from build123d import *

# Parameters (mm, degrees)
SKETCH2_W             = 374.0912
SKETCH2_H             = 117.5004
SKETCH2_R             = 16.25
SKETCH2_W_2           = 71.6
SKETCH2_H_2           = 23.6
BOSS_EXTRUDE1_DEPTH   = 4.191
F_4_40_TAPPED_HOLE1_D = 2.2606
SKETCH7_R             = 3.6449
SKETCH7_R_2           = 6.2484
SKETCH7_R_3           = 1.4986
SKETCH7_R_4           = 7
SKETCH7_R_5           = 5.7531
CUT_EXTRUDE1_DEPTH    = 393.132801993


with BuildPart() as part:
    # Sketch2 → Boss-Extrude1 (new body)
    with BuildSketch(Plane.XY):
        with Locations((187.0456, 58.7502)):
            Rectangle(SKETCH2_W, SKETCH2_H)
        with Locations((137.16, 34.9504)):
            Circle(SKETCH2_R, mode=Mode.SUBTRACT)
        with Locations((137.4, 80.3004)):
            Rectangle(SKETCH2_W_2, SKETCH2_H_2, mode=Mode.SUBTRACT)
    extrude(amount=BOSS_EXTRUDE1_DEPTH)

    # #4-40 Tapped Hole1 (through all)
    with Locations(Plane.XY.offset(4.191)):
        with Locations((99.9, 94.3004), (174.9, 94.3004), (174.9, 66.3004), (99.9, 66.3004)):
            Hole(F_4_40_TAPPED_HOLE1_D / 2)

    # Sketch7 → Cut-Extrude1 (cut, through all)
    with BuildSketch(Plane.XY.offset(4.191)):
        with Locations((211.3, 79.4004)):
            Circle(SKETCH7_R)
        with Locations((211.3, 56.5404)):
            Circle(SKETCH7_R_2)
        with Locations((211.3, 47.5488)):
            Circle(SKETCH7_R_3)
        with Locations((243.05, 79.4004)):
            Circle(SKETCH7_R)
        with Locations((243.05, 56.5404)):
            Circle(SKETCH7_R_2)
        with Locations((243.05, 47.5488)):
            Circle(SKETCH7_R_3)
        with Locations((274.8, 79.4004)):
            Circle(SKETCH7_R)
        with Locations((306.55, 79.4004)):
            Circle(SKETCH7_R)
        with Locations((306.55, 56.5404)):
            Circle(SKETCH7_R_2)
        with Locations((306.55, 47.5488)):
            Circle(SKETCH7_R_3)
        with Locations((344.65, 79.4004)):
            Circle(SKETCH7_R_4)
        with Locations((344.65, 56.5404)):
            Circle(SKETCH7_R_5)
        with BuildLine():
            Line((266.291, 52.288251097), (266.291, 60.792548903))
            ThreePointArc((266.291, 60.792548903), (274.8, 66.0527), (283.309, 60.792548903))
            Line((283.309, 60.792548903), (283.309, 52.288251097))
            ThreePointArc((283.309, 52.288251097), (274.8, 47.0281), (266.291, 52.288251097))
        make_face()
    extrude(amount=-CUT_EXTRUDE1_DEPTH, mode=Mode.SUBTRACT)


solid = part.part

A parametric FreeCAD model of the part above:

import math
import FreeCAD as App
import Part
import Sketcher
from FreeCAD import Vector
Q = App.Units.Quantity

doc = App.newDocument("Part")
body = doc.addObject("PartDesign::Body", "Body")

sketch1 = doc.addObject("Sketcher::SketchObject", "Sketch")
body.addObject(sketch1)
sketch1.AttachmentSupport = (doc.XY_Plane, [""])
sketch1.MapMode = "FlatFace"
sketch1.addGeometry(Part.LineSegment(Vector(0, 118, 0), Vector(0, 0, 0)), False)
sketch1.addGeometry(Part.LineSegment(Vector(0, 0, 0), Vector(374, 0, 0)), False)
sketch1.addGeometry(Part.LineSegment(Vector(374, 0, 0), Vector(374, 118, 0)), False)
sketch1.addGeometry(Part.LineSegment(Vector(374, 118, 0), Vector(0, 118, 0)), False)
sketch1.addGeometry(Part.Circle(Vector(137, 35, 0), Vector(0, 0, 1), 16), False)
sketch1.addGeometry(Part.LineSegment(Vector(173, 69, 0), Vector(102, 69, 0)), False)
sketch1.addGeometry(Part.LineSegment(Vector(102, 69, 0), Vector(102, 92, 0)), False)
sketch1.addGeometry(Part.LineSegment(Vector(102, 92, 0), Vector(173, 92, 0)), False)
sketch1.addGeometry(Part.LineSegment(Vector(173, 92, 0), Vector(173, 69, 0)), False)
sketch1.addConstraint(Sketcher.Constraint("Coincident", 0, 2, 1, 1))
sketch1.addConstraint(Sketcher.Constraint("Coincident", 1, 2, 2, 1))
sketch1.addConstraint(Sketcher.Constraint("Coincident", 2, 2, 3, 1))
sketch1.addConstraint(Sketcher.Constraint("Coincident", 3, 2, 0, 1))
sketch1.addConstraint(Sketcher.Constraint("Coincident", 5, 2, 6, 1))
sketch1.addConstraint(Sketcher.Constraint("Coincident", 6, 2, 7, 1))
sketch1.addConstraint(Sketcher.Constraint("Coincident", 7, 2, 8, 1))
sketch1.addConstraint(Sketcher.Constraint("Coincident", 8, 2, 5, 1))
sketch1.addConstraint(Sketcher.Constraint("Vertical", 0))
sketch1.addConstraint(Sketcher.Constraint("Horizontal", 1))
sketch1.addConstraint(Sketcher.Constraint("Vertical", 2))
sketch1.addConstraint(Sketcher.Constraint("Horizontal", 3))
sketch1.addConstraint(Sketcher.Constraint("Horizontal", 5))
sketch1.addConstraint(Sketcher.Constraint("Vertical", 6))
sketch1.addConstraint(Sketcher.Constraint("Horizontal", 7))
sketch1.addConstraint(Sketcher.Constraint("Vertical", 8))
sketch1.addConstraint(Sketcher.Constraint("Coincident", 0, 2, -1, 1))
sketch1.addConstraint(Sketcher.Constraint("DistanceX", -1, 1, 5, 2, Q("4 in")))
sketch1.addConstraint(Sketcher.Constraint("DistanceY", 6, 2, 3, 2, Q("1 in")))
sketch1.addConstraint(Sketcher.Constraint("DistanceX", -1, 1, 4, 3, Q("5.4 in")))
sketch1.addConstraint(Sketcher.Constraint("Diameter", 4, Q("32.5 mm")))
sketch1.addConstraint(Sketcher.Constraint("DistanceX", 1, 1, 1, 2, Q("14.728 in")))
sketch1.addConstraint(Sketcher.Constraint("DistanceY", 0, 2, 0, 1, Q("4.626 in")))
sketch1.addConstraint(Sketcher.Constraint("DistanceY", 4, 3, 2, 2, Q("3.25 in")))
sketch1.addConstraint(Sketcher.Constraint("DistanceX", 5, 2, 5, 1, Q("71.6 mm")))
sketch1.addConstraint(Sketcher.Constraint("DistanceY", 6, 1, 6, 2, Q("23.6 mm")))
pad1 = doc.addObject("PartDesign::Pad", "Pad")
body.addObject(pad1)
pad1.Profile = sketch1
pad1.Length = Q("0.165 in")

sketch2 = doc.addObject("Sketcher::SketchObject", "Sketch001")
body.addObject(sketch2)
sketch2.AttachmentSupport = (doc.XY_Plane, [""])
sketch2.MapMode = "FlatFace"
sketch2.AttachmentOffset = App.Placement(Vector(0, 0, 0.165 * 25.4), App.Rotation())
sketch2.addGeometry(Part.Circle(Vector(99.9, 94.3, 0), Vector(0, 0, 1), 1.1), False)
sketch2.addGeometry(Part.Circle(Vector(174.9, 94.3, 0), Vector(0, 0, 1), 1.1), False)
sketch2.addGeometry(Part.Circle(Vector(174.9, 66.3, 0), Vector(0, 0, 1), 1.1), False)
sketch2.addGeometry(Part.Circle(Vector(99.9, 66.3, 0), Vector(0, 0, 1), 1.1), False)
sketch2.addConstraint(Sketcher.Constraint("Equal", 0, 1))
sketch2.addConstraint(Sketcher.Constraint("Equal", 1, 2))
sketch2.addConstraint(Sketcher.Constraint("Equal", 2, 3))
sketch2.addConstraint(Sketcher.Constraint("Horizontal", 0, 3, 1, 3))
sketch2.addConstraint(Sketcher.Constraint("Horizontal", 2, 3, 3, 3))
sketch2.addConstraint(Sketcher.Constraint("Vertical", 1, 3, 2, 3))
sketch2.addConstraint(Sketcher.Constraint("Vertical", 0, 3, 3, 3))
sketch2.addConstraint(Sketcher.Constraint("Diameter", 0, Q("0.089 in")))
sketch2.addConstraint(Sketcher.Constraint("DistanceX", -1, 1, 0, 3, Q("99.9 mm")))
sketch2.addConstraint(Sketcher.Constraint("DistanceY", -1, 1, 0, 3, Q("94.3004 mm")))
sketch2.addConstraint(Sketcher.Constraint("DistanceX", -1, 1, 1, 3, Q("174.9 mm")))
sketch2.addConstraint(Sketcher.Constraint("DistanceY", -1, 1, 2, 3, Q("66.3004 mm")))
doc.recompute()
hole = doc.addObject("PartDesign::Hole", "Hole")
body.addObject(hole)
hole.Profile = sketch2
hole.ThreadType = "None"
hole.Diameter = Q("0.089 in")
hole.DepthType = "ThroughAll"

sketch3 = doc.addObject("Sketcher::SketchObject", "Sketch002")
body.addObject(sketch3)
sketch3.AttachmentSupport = (doc.XY_Plane, [""])
sketch3.MapMode = "FlatFace"
sketch3.AttachmentOffset = App.Placement(Vector(0, 0, 0.165 * 25.4), App.Rotation())
sketch3.addGeometry(Part.Circle(Vector(211.3, 79.4, 0), Vector(0, 0, 1), 3.6), False)
sketch3.addGeometry(Part.Circle(Vector(211.3, 56.5, 0), Vector(0, 0, 1), 6.2), False)
sketch3.addGeometry(Part.Circle(Vector(211.3, 47.5, 0), Vector(0, 0, 1), 1.5), False)
sketch3.addGeometry(Part.Circle(Vector(243.1, 79.4, 0), Vector(0, 0, 1), 3.6), False)
sketch3.addGeometry(Part.Circle(Vector(243.1, 56.5, 0), Vector(0, 0, 1), 6.2), False)
sketch3.addGeometry(Part.Circle(Vector(243.1, 47.5, 0), Vector(0, 0, 1), 1.5), False)
sketch3.addGeometry(Part.Circle(Vector(274.8, 79.4, 0), Vector(0, 0, 1), 3.6), False)
sketch3.addGeometry(Part.Circle(Vector(306.6, 79.4, 0), Vector(0, 0, 1), 3.6), False)
sketch3.addGeometry(Part.Circle(Vector(306.6, 56.5, 0), Vector(0, 0, 1), 6.2), False)
sketch3.addGeometry(Part.Circle(Vector(306.6, 47.5, 0), Vector(0, 0, 1), 1.5), False)
sketch3.addGeometry(Part.Circle(Vector(344.6, 79.4, 0), Vector(0, 0, 1), 7), False)
sketch3.addGeometry(Part.Circle(Vector(344.6, 56.5, 0), Vector(0, 0, 1), 5.8), False)
sketch3.addGeometry(Part.LineSegment(Vector(266.3, 60.8, 0), Vector(266.3, 52.3, 0)), False)
sketch3.addGeometry(Part.ArcOfCircle(Part.Circle(Vector(274.8, 56.5, 0), Vector(0, 0, 1), 9.5), math.radians(-153), math.radians(-27)), False)
sketch3.addGeometry(Part.LineSegment(Vector(283.3, 52.3, 0), Vector(283.3, 60.8, 0)), False)
sketch3.addGeometry(Part.ArcOfCircle(Part.Circle(Vector(274.8, 56.5, 0), Vector(0, 0, 1), 9.5), math.radians(27), math.radians(153)), False)
sketch3.addConstraint(Sketcher.Constraint("Coincident", 12, 2, 13, 1))
sketch3.addConstraint(Sketcher.Constraint("Coincident", 13, 2, 14, 1))
sketch3.addConstraint(Sketcher.Constraint("Coincident", 14, 2, 15, 1))
sketch3.addConstraint(Sketcher.Constraint("Coincident", 15, 2, 12, 1))
sketch3.addConstraint(Sketcher.Constraint("Vertical", 12))
sketch3.addConstraint(Sketcher.Constraint("Vertical", 14))
sketch3.addConstraint(Sketcher.Constraint("Coincident", 15, 3, 13, 3))
sketch3.addConstraint(Sketcher.Constraint("Equal", 0, 3))
sketch3.addConstraint(Sketcher.Constraint("Equal", 1, 4))
sketch3.addConstraint(Sketcher.Constraint("Equal", 2, 5))
sketch3.addConstraint(Sketcher.Constraint("Equal", 3, 6))
sketch3.addConstraint(Sketcher.Constraint("Equal", 6, 7))
sketch3.addConstraint(Sketcher.Constraint("Equal", 4, 8))
sketch3.addConstraint(Sketcher.Constraint("Equal", 5, 9))
sketch3.addConstraint(Sketcher.Constraint("Equal", 13, 15))
sketch3.addConstraint(Sketcher.Constraint("Horizontal", 0, 3, 3, 3))
sketch3.addConstraint(Sketcher.Constraint("Horizontal", 1, 3, 4, 3))
sketch3.addConstraint(Sketcher.Constraint("Horizontal", 2, 3, 5, 3))
sketch3.addConstraint(Sketcher.Constraint("Horizontal", 3, 3, 6, 3))
sketch3.addConstraint(Sketcher.Constraint("Horizontal", 6, 3, 7, 3))
sketch3.addConstraint(Sketcher.Constraint("Horizontal", 4, 3, 8, 3))
sketch3.addConstraint(Sketcher.Constraint("Horizontal", 5, 3, 9, 3))
sketch3.addConstraint(Sketcher.Constraint("Horizontal", 7, 3, 10, 3))
sketch3.addConstraint(Sketcher.Constraint("Horizontal", 8, 3, 11, 3))
sketch3.addConstraint(Sketcher.Constraint("Horizontal", 11, 3, 13, 3))
sketch3.addConstraint(Sketcher.Constraint("Horizontal", 12, 2, 13, 2))
sketch3.addConstraint(Sketcher.Constraint("Vertical", 0, 3, 1, 3))
sketch3.addConstraint(Sketcher.Constraint("Vertical", 1, 3, 2, 3))
sketch3.addConstraint(Sketcher.Constraint("Vertical", 3, 3, 4, 3))
sketch3.addConstraint(Sketcher.Constraint("Vertical", 4, 3, 5, 3))
sketch3.addConstraint(Sketcher.Constraint("Vertical", 7, 3, 8, 3))
sketch3.addConstraint(Sketcher.Constraint("Vertical", 8, 3, 9, 3))
sketch3.addConstraint(Sketcher.Constraint("Vertical", 10, 3, 11, 3))
sketch3.addConstraint(Sketcher.Constraint("Vertical", 6, 3, 13, 3))
sketch3.addConstraint(Sketcher.Constraint("Diameter", 0, Q("0.287 in")))
sketch3.addConstraint(Sketcher.Constraint("Diameter", 1, Q("0.492 in")))
sketch3.addConstraint(Sketcher.Constraint("Diameter", 2, Q("0.118 in")))
sketch3.addConstraint(Sketcher.Constraint("Diameter", 11, Q("0.453 in")))
sketch3.addConstraint(Sketcher.Constraint("DistanceX", 3, 3, 10, 3, Q("4 in")))
sketch3.addConstraint(Sketcher.Constraint("Radius", 13, Q("0.3745 in")))
sketch3.addConstraint(Sketcher.Constraint("DistanceY", 1, 3, 0, 3, Q("0.9 in")))
sketch3.addConstraint(Sketcher.Constraint("DistanceX", 0, 3, 6, 3, Q("2.5 in")))
sketch3.addConstraint(Sketcher.Constraint("DistanceX", 3, 3, 7, 3, Q("2.5 in")))
sketch3.addConstraint(Sketcher.Constraint("Diameter", 10, Q("14 mm")))
sketch3.addConstraint(Sketcher.Constraint("DistanceX", 0, 3, 3, 3, Q("1.25 in")))
sketch3.addConstraint(Sketcher.Constraint("DistanceX", 12, 2, 13, 2, Q("0.67 in")))
sketch3.addConstraint(Sketcher.Constraint("DistanceY", -1, 1, 0, 3, Q("3.126 in")))
sketch3.addConstraint(Sketcher.Constraint("DistanceY", -1, 1, 2, 3, Q("1.872 in")))
sketch3.addConstraint(Sketcher.Constraint("DistanceX", -1, 1, 0, 3, Q("211.3 mm")))
pocket1 = doc.addObject("PartDesign::Pocket", "Pocket")
body.addObject(pocket1)
pocket1.Profile = sketch3
pocket1.Type = "ThroughAll"

doc.recompute()
